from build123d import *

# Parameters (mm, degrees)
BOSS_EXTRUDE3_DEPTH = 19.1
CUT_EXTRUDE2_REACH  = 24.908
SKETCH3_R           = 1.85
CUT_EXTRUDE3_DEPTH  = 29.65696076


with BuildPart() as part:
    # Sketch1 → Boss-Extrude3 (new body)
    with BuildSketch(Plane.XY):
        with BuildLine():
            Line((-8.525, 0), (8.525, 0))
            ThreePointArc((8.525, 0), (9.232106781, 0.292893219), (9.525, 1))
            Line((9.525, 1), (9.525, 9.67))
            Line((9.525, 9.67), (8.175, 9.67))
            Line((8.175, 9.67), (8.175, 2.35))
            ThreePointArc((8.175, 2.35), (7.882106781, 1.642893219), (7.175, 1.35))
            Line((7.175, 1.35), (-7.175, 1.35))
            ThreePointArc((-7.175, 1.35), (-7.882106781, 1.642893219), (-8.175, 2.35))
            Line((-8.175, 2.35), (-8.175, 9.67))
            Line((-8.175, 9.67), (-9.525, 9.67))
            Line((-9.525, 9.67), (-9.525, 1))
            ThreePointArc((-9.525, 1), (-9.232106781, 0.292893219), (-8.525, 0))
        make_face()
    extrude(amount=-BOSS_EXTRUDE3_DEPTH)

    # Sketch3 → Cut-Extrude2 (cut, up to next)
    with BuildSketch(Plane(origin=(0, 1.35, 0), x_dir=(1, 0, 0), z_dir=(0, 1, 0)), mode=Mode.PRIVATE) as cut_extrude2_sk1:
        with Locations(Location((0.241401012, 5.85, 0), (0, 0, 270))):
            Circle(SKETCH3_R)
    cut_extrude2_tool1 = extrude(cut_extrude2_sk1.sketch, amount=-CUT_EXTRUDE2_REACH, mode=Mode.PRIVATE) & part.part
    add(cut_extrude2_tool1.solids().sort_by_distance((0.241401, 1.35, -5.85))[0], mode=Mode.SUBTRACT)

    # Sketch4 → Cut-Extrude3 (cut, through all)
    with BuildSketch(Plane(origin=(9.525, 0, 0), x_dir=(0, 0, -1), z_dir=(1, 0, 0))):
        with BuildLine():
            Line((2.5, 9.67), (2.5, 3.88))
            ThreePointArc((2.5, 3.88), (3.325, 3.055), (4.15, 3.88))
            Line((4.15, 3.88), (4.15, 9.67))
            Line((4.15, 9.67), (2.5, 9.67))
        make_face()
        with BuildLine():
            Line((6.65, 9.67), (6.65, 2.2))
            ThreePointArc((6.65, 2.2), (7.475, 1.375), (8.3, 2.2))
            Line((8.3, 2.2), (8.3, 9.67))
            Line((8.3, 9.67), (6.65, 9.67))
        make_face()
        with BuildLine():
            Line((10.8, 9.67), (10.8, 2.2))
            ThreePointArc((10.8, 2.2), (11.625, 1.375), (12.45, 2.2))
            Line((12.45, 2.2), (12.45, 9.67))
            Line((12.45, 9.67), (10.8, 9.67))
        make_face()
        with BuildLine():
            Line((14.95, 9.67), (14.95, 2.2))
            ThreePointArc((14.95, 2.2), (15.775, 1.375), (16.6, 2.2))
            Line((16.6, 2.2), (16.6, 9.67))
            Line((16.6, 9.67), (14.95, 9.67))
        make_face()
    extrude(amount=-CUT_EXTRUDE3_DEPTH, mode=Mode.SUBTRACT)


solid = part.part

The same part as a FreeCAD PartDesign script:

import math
import FreeCAD as App
import Part
import Sketcher
from FreeCAD import Vector
Q = App.Units.Quantity

doc = App.newDocument("Part")
body = doc.addObject("PartDesign::Body", "Body")

sketch1 = body.newObject("Sketcher::SketchObject", "Sketch")
sketch1.AttachmentSupport = (doc.getObject("XY_Plane"), [""])
sketch1.MapMode = "FlatFace"
sketch1.addGeometry(Part.LineSegment(Vector(-8.5, 0, 0), Vector(8.5, 0, 0)), False)
sketch1.addGeometry(Part.ArcOfCircle(Part.Circle(Vector(8.5, 1, 0), Vector(0, 0, 1), 1), math.radians(-90), math.radians(0)), False)
sketch1.addGeometry(Part.LineSegment(Vector(9.5, 1, 0), Vector(9.5, 9.7, 0)), False)
sketch1.addGeometry(Part.LineSegment(Vector(9.5, 9.7, 0), Vector(8.2, 9.7, 0)), False)
sketch1.addGeometry(Part.LineSegment(Vector(8.2, 9.7, 0), Vector(8.2, 2.4, 0)), False)
sketch1.addGeometry(Part.ArcOfCircle(Part.Circle(Vector(7.2, 2.4, 0), Vector(0, 0, 1), 1), math.radians(-90), math.radians(0)), False)
sketch1.addGeometry(Part.LineSegment(Vector(7.2, 1.4, 0), Vector(-7.2, 1.4, 0)), False)
sketch1.addGeometry(Part.ArcOfCircle(Part.Circle(Vector(-7.2, 2.4, 0), Vector(0, 0, 1), 1), math.radians(-180), math.radians(-90)), False)
sketch1.addGeometry(Part.LineSegment(Vector(-8.2, 2.4, 0), Vector(-8.2, 9.7, 0)), False)
sketch1.addGeometry(Part.LineSegment(Vector(-8.2, 9.7, 0), Vector(-9.5, 9.7, 0)), False)
sketch1.addGeometry(Part.LineSegment(Vector(-9.5, 9.7, 0), Vector(-9.5, 1, 0)), False)
sketch1.addGeometry(Part.ArcOfCircle(Part.Circle(Vector(-8.5, 1, 0), Vector(0, 0, 1), 1), math.radians(-180), math.radians(-90)), False)
sketch1.addConstraint(Sketcher.Constraint("Tangent", 0, 2, 1, 1))
sketch1.addConstraint(Sketcher.Constraint("Tangent", 1, 2, 2, 1))
sketch1.addConstraint(Sketcher.Constraint("Coincident", 2, 2, 3, 1))
sketch1.addConstraint(Sketcher.Constraint("Coincident", 3, 2, 4, 1))
sketch1.addConstraint(Sketcher.Constraint("Tangent", 4, 2, 5, 2))
sketch1.addConstraint(Sketcher.Constraint("Tangent", 5, 1, 6, 1))
sketch1.addConstraint(Sketcher.Constraint("Tangent", 6, 2, 7, 2))
sketch1.addConstraint(Sketcher.Constraint("Tangent", 7, 1, 8, 1))
sketch1.addConstraint(Sketcher.Constraint("Coincident", 8, 2, 9, 1))
sketch1.addConstraint(Sketcher.Constraint("Coincident", 9, 2, 10, 1))
sketch1.addConstraint(Sketcher.Constraint("Tangent", 10, 2, 11, 1))
sketch1.addConstraint(Sketcher.Constraint("Tangent", 11, 2, 0, 1))
sketch1.addConstraint(Sketcher.Constraint("Horizontal", 0))
sketch1.addConstraint(Sketcher.Constraint("Vertical", 2))
sketch1.addConstraint(Sketcher.Constraint("Horizontal", 3))
sketch1.addConstraint(Sketcher.Constraint("Vertical", 4))
sketch1.addConstraint(Sketcher.Constraint("Horizontal", 6))
sketch1.addConstraint(Sketcher.Constraint("Vertical", 8))
sketch1.addConstraint(Sketcher.Constraint("Horizontal", 9))
sketch1.addConstraint(Sketcher.Constraint("Vertical", 10))
sketch1.addConstraint(Sketcher.Constraint("Equal", 1, 5))
sketch1.addConstraint(Sketcher.Constraint("Equal", 5, 7))
sketch1.addConstraint(Sketcher.Constraint("Equal", 7, 11))
sketch1.addConstraint(Sketcher.Constraint("Symmetric", 0, 2, 11, 2, -1, 1))
sketch1.addConstraint(Sketcher.Constraint("Symmetric", 3, 2, 8, 2, -2))
sketch1.addConstraint(Sketcher.Constraint("Radius", 1, Q("1 mm")))
sketch1.addConstraint(Sketcher.Constraint("DistanceX", 0, 1, 0, 2, Q("17.05 mm")))
sketch1.addConstraint(Sketcher.Constraint("DistanceX", 3, 2, 3, 1, Q("1.35 mm")))
sketch1.addConstraint(Sketcher.Constraint("DistanceY", 2, 1, 2, 2, Q("8.67 mm")))
sketch1.addConstraint(Sketcher.Constraint("DistanceY", 4, 2, 4, 1, Q("7.32 mm")))
pad1 = body.newObject("PartDesign::Pad", "Pad")
pad1.Profile = sketch1
pad1.Length = 19.1
pad1.Reversed = True

sketch2 = body.newObject("Sketcher::SketchObject", "Sketch001")
sketch2.AttachmentSupport = (doc.getObject("XZ_Plane"), [""])
sketch2.MapMode = "FlatFace"
sketch2.AttachmentOffset = App.Placement(Vector(0, 0, -1.35), App.Rotation())
sketch2.addGeometry(Part.Circle(Vector(0.2, -5.8, 0), Vector(0, 0, 1), 1.9), False)
sketch2.addConstraint(Sketcher.Constraint("Diameter", 0, Q("3.7 mm")))
sketch2.addConstraint(Sketcher.Constraint("DistanceY", 0, 3, -1, 1, Q("5.85 mm")))
sketch2.addConstraint(Sketcher.Constraint("DistanceX", -1, 1, 0, 3, Q("0.241401 mm")))
pocket1 = body.newObject("PartDesign::Pocket", "Pocket")
pocket1.Profile = sketch2
pocket1.Type = "UpToFirst"
pocket1.Reversed = True

sketch3 = body.newObject("Sketcher::SketchObject", "Sketch002")
sketch3.AttachmentSupport = (doc.getObject("YZ_Plane"), [""])
sketch3.MapMode = "FlatFace"
sketch3.AttachmentOffset = App.Placement(Vector(0, 0, 9.525), App.Rotation())
sketch3.addGeometry(Part.LineSegment(Vector(9.7, -2.5, 0), Vector(3.9, -2.5, 0)), False)
sketch3.addGeometry(Part.ArcOfCircle(Part.Circle(Vector(3.9, -3.3, 0), Vector(0, 0, 1), 0.8), math.radians(90), math.radians(270)), False)
sketch3.addGeometry(Part.LineSegment(Vector(3.9, -4.2, 0), Vector(9.7, -4.2, 0)), False)
sketch3.addGeometry(Part.LineSegment(Vector(9.7, -4.2, 0), Vector(9.7, -2.5, 0)), False)
sketch3.addGeometry(Part.LineSegment(Vector(9.7, -6.7, 0), Vector(2.2, -6.7, 0)), False)
sketch3.addGeometry(Part.ArcOfCircle(Part.Circle(Vector(2.2, -7.5, 0), Vector(0, 0, 1), 0.8), math.radians(90), math.radians(270)), False)
sketch3.addGeometry(Part.LineSegment(Vector(2.2, -8.3, 0), Vector(9.7, -8.3, 0)), False)
sketch3.addGeometry(Part.LineSegment(Vector(9.7, -8.3, 0), Vector(9.7, -6.7, 0)), False)
sketch3.addGeometry(Part.LineSegment(Vector(9.7, -10.8, 0), Vector(2.2, -10.8, 0)), False)
sketch3.addGeometry(Part.ArcOfCircle(Part.Circle(Vector(2.2, -11.6, 0), Vector(0, 0, 1), 0.8), math.radians(90), math.radians(270)), False)
sketch3.addGeometry(Part.LineSegment(Vector(2.2, -12.4, 0), Vector(9.7, -12.4, 0)), False)
sketch3.addGeometry(Part.LineSegment(Vector(9.7, -12.4, 0), Vector(9.7, -10.8, 0)), False)
sketch3.addGeometry(Part.LineSegment(Vector(9.7, -14.9, 0), Vector(2.2, -14.9, 0)), False)
sketch3.addGeometry(Part.ArcOfCircle(Part.Circle(Vector(2.2, -15.8, 0), Vector(0, 0, 1), 0.8), math.radians(90), math.radians(270)), False)
sketch3.addGeometry(Part.LineSegment(Vector(2.2, -16.6, 0), Vector(9.7, -16.6, 0)), False)
sketch3.addGeometry(Part.LineSegment(Vector(9.7, -16.6, 0), Vector(9.7, -14.9, 0)), False)
sketch3.addConstraint(Sketcher.Constraint("Tangent", 0, 2, 1, 1))
sketch3.addConstraint(Sketcher.Constraint("Tangent", 1, 2, 2, 1))
sketch3.addConstraint(Sketcher.Constraint("Coincident", 2, 2, 3, 1))
sketch3.addConstraint(Sketcher.Constraint("Coincident", 3, 2, 0, 1))
sketch3.addConstraint(Sketcher.Constraint("Tangent", 4, 2, 5, 1))
sketch3.addConstraint(Sketcher.Constraint("Tangent", 5, 2, 6, 1))
sketch3.addConstraint(Sketcher.Constraint("Coincident", 6, 2, 7, 1))
sketch3.addConstraint(Sketcher.Constraint("Coincident", 7, 2, 4, 1))
sketch3.addConstraint(Sketcher.Constraint("Tangent", 8, 2, 9, 1))
sketch3.addConstraint(Sketcher.Constraint("Tangent", 9, 2, 10, 1))
sketch3.addConstraint(Sketcher.Constraint("Coincident", 10, 2, 11, 1))
sketch3.addConstraint(Sketcher.Constraint("Coincident", 11, 2, 8, 1))
sketch3.addConstraint(Sketcher.Constraint("Tangent", 12, 2, 13, 1))
sketch3.addConstraint(Sketcher.Constraint("Tangent", 13, 2, 14, 1))
sketch3.addConstraint(Sketcher.Constraint("Coincident", 14, 2, 15, 1))
sketch3.addConstraint(Sketcher.Constraint("Coincident", 15, 2, 12, 1))
sketch3.addConstraint(Sketcher.Constraint("Horizontal", 0))
sketch3.addConstraint(Sketcher.Constraint("Horizontal", 2))
sketch3.addConstraint(Sketcher.Constraint("Vertical", 3))
sketch3.addConstraint(Sketcher.Constraint("Horizontal", 4))
sketch3.addConstraint(Sketcher.Constraint("Horizontal", 6))
sketch3.addConstraint(Sketcher.Constraint("Vertical", 7))
sketch3.addConstraint(Sketcher.Constraint("Horizontal", 8))
sketch3.addConstraint(Sketcher.Constraint("Horizontal", 10))
sketch3.addConstraint(Sketcher.Constraint("Vertical", 11))
sketch3.addConstraint(Sketcher.Constraint("Horizontal", 12))
sketch3.addConstraint(Sketcher.Constraint("Horizontal", 14))
sketch3.addConstraint(Sketcher.Constraint("Vertical", 15))
sketch3.addConstraint(Sketcher.Constraint("Equal", 1, 5))
sketch3.addConstraint(Sketcher.Constraint("Equal", 5, 9))
sketch3.addConstraint(Sketcher.Constraint("Equal", 9, 13))
sketch3.addConstraint(Sketcher.Constraint("Vertical", 5, 3, 9, 3))
sketch3.addConstraint(Sketcher.Constraint("Vertical", 9, 3, 13, 3))
sketch3.addConstraint(Sketcher.Constraint("Vertical", 3, 2, 6, 2))
sketch3.addConstraint(Sketcher.Constraint("Vertical", 7, 2, 10, 2))
sketch3.addConstraint(Sketcher.Constraint("Vertical", 11, 2, 14, 2))
sketch3.addConstraint(Sketcher.Constraint("Radius", 1, Q("0.825 mm")))
sketch3.addConstraint(Sketcher.Constraint("DistanceX", 0, 2, 0, 1, Q("5.79 mm")))
sketch3.addConstraint(Sketcher.Constraint("DistanceX", 4, 2, 4, 1, Q("7.47 mm")))
sketch3.addConstraint(Sketcher.Constraint("DistanceX", -1, 1, 5, 3, Q("2.2 mm")))
sketch3.addConstraint(Sketcher.Constraint("DistanceY", 0, 2, -1, 1, Q("2.5 mm")))
sketch3.addConstraint(Sketcher.Constraint("DistanceY", 5, 2, -1, 1, Q("8.3 mm")))
sketch3.addConstraint(Sketcher.Constraint("DistanceY", 8, 2, -1, 1, Q("10.8 mm")))
sketch3.addConstraint(Sketcher.Constraint("DistanceY", 13, 2, -1, 1, Q("16.6 mm")))
pocket2 = body.newObject("PartDesign::Pocket", "Pocket001")
pocket2.Profile = sketch3
pocket2.Type = "ThroughAll"

doc.recompute()
